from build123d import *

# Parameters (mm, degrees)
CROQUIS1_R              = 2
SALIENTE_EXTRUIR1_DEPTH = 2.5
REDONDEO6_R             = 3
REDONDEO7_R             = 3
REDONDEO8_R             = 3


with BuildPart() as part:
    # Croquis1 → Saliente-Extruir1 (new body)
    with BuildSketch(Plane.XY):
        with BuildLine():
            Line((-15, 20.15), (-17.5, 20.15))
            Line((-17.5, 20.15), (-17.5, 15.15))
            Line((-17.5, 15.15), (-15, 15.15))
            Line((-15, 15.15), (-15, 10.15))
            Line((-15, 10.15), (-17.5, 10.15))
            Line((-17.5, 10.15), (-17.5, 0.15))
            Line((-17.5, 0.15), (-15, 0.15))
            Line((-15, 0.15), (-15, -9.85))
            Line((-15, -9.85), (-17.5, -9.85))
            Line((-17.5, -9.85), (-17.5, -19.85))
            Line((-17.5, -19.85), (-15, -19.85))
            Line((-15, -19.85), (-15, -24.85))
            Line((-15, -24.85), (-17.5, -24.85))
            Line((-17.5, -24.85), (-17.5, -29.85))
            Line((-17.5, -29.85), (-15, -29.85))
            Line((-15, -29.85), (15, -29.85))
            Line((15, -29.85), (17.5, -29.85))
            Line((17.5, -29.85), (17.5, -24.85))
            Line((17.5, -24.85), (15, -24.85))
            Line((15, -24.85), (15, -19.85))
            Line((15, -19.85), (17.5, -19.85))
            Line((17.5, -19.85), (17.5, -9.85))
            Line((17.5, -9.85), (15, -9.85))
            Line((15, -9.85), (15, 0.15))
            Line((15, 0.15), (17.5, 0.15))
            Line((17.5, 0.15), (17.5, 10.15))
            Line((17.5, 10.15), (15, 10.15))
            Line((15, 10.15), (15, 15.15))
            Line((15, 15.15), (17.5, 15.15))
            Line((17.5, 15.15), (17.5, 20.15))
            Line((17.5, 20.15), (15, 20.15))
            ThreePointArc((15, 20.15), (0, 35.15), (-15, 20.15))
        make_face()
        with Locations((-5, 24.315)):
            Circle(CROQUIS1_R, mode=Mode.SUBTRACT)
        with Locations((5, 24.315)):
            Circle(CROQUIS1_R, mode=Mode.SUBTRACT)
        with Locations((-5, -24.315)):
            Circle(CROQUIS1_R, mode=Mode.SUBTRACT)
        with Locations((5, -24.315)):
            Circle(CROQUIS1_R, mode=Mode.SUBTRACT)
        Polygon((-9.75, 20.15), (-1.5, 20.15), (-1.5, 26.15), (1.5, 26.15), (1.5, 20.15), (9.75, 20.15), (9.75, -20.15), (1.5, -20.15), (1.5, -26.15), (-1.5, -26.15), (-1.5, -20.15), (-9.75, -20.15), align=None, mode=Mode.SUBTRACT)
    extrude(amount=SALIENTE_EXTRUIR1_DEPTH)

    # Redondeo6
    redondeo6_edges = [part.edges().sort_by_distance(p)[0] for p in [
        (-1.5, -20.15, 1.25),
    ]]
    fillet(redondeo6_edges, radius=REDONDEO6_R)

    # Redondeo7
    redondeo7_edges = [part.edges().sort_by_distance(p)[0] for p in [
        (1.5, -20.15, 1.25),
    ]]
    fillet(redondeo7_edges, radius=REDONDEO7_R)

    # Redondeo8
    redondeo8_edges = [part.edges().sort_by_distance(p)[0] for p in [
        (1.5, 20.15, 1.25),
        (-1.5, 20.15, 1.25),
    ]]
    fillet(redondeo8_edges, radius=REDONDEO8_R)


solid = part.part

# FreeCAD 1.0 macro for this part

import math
import FreeCAD as App
import Part
import Sketcher

V = App.Vector


def edges_at(feature, points):
    """Names of the edges that pass closest to the given points."""
    edges = feature.Shape.Edges
    near = lambda p: min(range(len(edges)), key=lambda i: edges[i].distToShape(Part.Vertex(*p))[0])
    return sorted({f"Edge{near(p) + 1}" for p in points})

doc = App.newDocument("Part")
body = doc.addObject("PartDesign::Body", "Body")

sketch1 = body.newObject("Sketcher::SketchObject", "Sketch")
sketch1.AttachmentSupport = (doc.getObject("XY_Plane"), [""])
sketch1.MapMode = "FlatFace"
sketch1.addGeometry(Part.LineSegment(V(-15, 20.15, 0), V(-17.5, 20.15, 0)), False)
sketch1.addGeometry(Part.LineSegment(V(-17.5, 20.15, 0), V(-17.5, 15.15, 0)), False)
sketch1.addGeometry(Part.LineSegment(V(-17.5, 15.15, 0), V(-15, 15.15, 0)), False)
sketch1.addGeometry(Part.LineSegment(V(-15, 15.15, 0), V(-15, 10.15, 0)), False)
sketch1.addGeometry(Part.LineSegment(V(-15, 10.15, 0), V(-17.5, 10.15, 0)), False)
sketch1.addGeometry(Part.LineSegment(V(-17.5, 10.15, 0), V(-17.5, 0.15, 0)), False)
sketch1.addGeometry(Part.LineSegment(V(-17.5, 0.15, 0), V(-15, 0.15, 0)), False)
sketch1.addGeometry(Part.LineSegment(V(-15, 0.15, 0), V(-15, -9.85, 0)), False)
sketch1.addGeometry(Part.LineSegment(V(-15, -9.85, 0), V(-17.5, -9.85, 0)), False)
sketch1.addGeometry(Part.LineSegment(V(-17.5, -9.85, 0), V(-17.5, -19.85, 0)), False)
sketch1.addGeometry(Part.LineSegment(V(-17.5, -19.85, 0), V(-15, -19.85, 0)), False)
sketch1.addGeometry(Part.LineSegment(V(-15, -19.85, 0), V(-15, -24.85, 0)), False)
sketch1.addGeometry(Part.LineSegment(V(-15, -24.85, 0), V(-17.5, -24.85, 0)), False)
sketch1.addGeometry(Part.LineSegment(V(-17.5, -24.85, 0), V(-17.5, -29.85, 0)), False)
sketch1.addGeometry(Part.LineSegment(V(-17.5, -29.85, 0), V(17.5, -29.85, 0)), False)
sketch1.addGeometry(Part.LineSegment(V(17.5, -29.85, 0), V(17.5, -24.85, 0)), False)
sketch1.addGeometry(Part.LineSegment(V(17.5, -24.85, 0), V(15, -24.85, 0)), False)
sketch1.addGeometry(Part.LineSegment(V(15, -24.85, 0), V(15, -19.85, 0)), False)
sketch1.addGeometry(Part.LineSegment(V(15, -19.85, 0), V(17.5, -19.85, 0)), False)
sketch1.addGeometry(Part.LineSegment(V(17.5, -19.85, 0), V(17.5, -9.85, 0)), False)
sketch1.addGeometry(Part.LineSegment(V(17.5, -9.85, 0), V(15, -9.85, 0)), False)
sketch1.addGeometry(Part.LineSegment(V(15, -9.85, 0), V(15, 0.15, 0)), False)
sketch1.addGeometry(Part.LineSegment(V(15, 0.15, 0), V(17.5, 0.15, 0)), False)
sketch1.addGeometry(Part.LineSegment(V(17.5, 0.15, 0), V(17.5, 10.15, 0)), False)
sketch1.addGeometry(Part.LineSegment(V(17.5, 10.15, 0), V(15, 10.15, 0)), False)
sketch1.addGeometry(Part.LineSegment(V(15, 10.15, 0), V(15, 15.15, 0)), False)
sketch1.addGeometry(Part.LineSegment(V(15, 15.15, 0), V(17.5, 15.15, 0)), False)
sketch1.addGeometry(Part.LineSegment(V(17.5, 15.15, 0), V(17.5, 20.15, 0)), False)
sketch1.addGeometry(Part.LineSegment(V(17.5, 20.15, 0), V(15, 20.15, 0)), False)
sketch1.addGeometry(Part.ArcOfCircle(Part.Circle(V(0, 20.15, 0), V(0, 0, 1), 15), math.radians(0), math.radians(180)), False)
sketch1.addGeometry(Part.Circle(V(-5, -24.315, 0), V(0, 0, 1), 2), False)
sketch1.addGeometry(Part.Circle(V(5, -24.315, 0), V(0, 0, 1), 2), False)
sketch1.addGeometry(Part.Circle(V(-5, 24.315, 0), V(0, 0, 1), 2), False)
sketch1.addGeometry(Part.LineSegment(V(-9.75, -20.15, 0), V(-9.75, 20.15, 0)), False)
sketch1.addGeometry(Part.LineSegment(V(-9.75, 20.15, 0), V(-1.5, 20.15, 0)), False)
sketch1.addGeometry(Part.LineSegment(V(-1.5, 20.15, 0), V(-1.5, 26.15, 0)), False)
sketch1.addGeometry(Part.LineSegment(V(-1.5, 26.15, 0), V(1.5, 26.15, 0)), False)
sketch1.addGeometry(Part.LineSegment(V(1.5, 26.15, 0), V(1.5, 20.15, 0)), False)
sketch1.addGeometry(Part.LineSegment(V(1.5, 20.15, 0), V(9.75, 20.15, 0)), False)
sketch1.addGeometry(Part.LineSegment(V(9.75, 20.15, 0), V(9.75, -20.15, 0)), False)
sketch1.addGeometry(Part.LineSegment(V(9.75, -20.15, 0), V(1.5, -20.15, 0)), False)
sketch1.addGeometry(Part.LineSegment(V(1.5, -20.15, 0), V(1.5, -26.15, 0)), False)
sketch1.addGeometry(Part.LineSegment(V(1.5, -26.15, 0), V(-1.5, -26.15, 0)), False)
sketch1.addGeometry(Part.LineSegment(V(-1.5, -26.15, 0), V(-1.5, -20.15, 0)), False)
sketch1.addGeometry(Part.LineSegment(V(-1.5, -20.15, 0), V(-9.75, -20.15, 0)), False)
sketch1.addGeometry(Part.Circle(V(5, 24.315, 0), V(0, 0, 1), 2), False)
sketch1.addConstraint(Sketcher.Constraint("Coincident", 0, 2, 1, 1))
sketch1.addConstraint(Sketcher.Constraint("Coincident", 1, 2, 2, 1))
sketch1.addConstraint(Sketcher.Constraint("Coincident", 2, 2, 3, 1))
sketch1.addConstraint(Sketcher.Constraint("Coincident", 3, 2, 4, 1))
sketch1.addConstraint(Sketcher.Constraint("Coincident", 4, 2, 5, 1))
sketch1.addConstraint(Sketcher.Constraint("Coincident", 5, 2, 6, 1))
sketch1.addConstraint(Sketcher.Constraint("Coincident", 6, 2, 7, 1))
sketch1.addConstraint(Sketcher.Constraint("Coincident", 7, 2, 8, 1))
sketch1.addConstraint(Sketcher.Constraint("Coincident", 8, 2, 9, 1))
sketch1.addConstraint(Sketcher.Constraint("Coincident", 9, 2, 10, 1))
sketch1.addConstraint(Sketcher.Constraint("Coincident", 10, 2, 11, 1))
sketch1.addConstraint(Sketcher.Constraint("Coincident", 11, 2, 12, 1))
sketch1.addConstraint(Sketcher.Constraint("Coincident", 12, 2, 13, 1))
sketch1.addConstraint(Sketcher.Constraint("Coincident", 13, 2, 14, 1))
sketch1.addConstraint(Sketcher.Constraint("Coincident", 14, 2, 15, 1))
sketch1.addConstraint(Sketcher.Constraint("Coincident", 15, 2, 16, 1))
sketch1.addConstraint(Sketcher.Constraint("Coincident", 16, 2, 17, 1))
sketch1.addConstraint(Sketcher.Constraint("Coincident", 17, 2, 18, 1))
sketch1.addConstraint(Sketcher.Constraint("Coincident", 18, 2, 19, 1))
sketch1.addConstraint(Sketcher.Constraint("Coincident", 19, 2, 20, 1))
sketch1.addConstraint(Sketcher.Constraint("Coincident", 20, 2, 21, 1))
sketch1.addConstraint(Sketcher.Constraint("Coincident", 21, 2, 22, 1))
sketch1.addConstraint(Sketcher.Constraint("Coincident", 22, 2, 23, 1))
sketch1.addConstraint(Sketcher.Constraint("Coincident", 23, 2, 24, 1))
sketch1.addConstraint(Sketcher.Constraint("Coincident", 24, 2, 25, 1))
sketch1.addConstraint(Sketcher.Constraint("Coincident", 25, 2, 26, 1))
sketch1.addConstraint(Sketcher.Constraint("Coincident", 26, 2, 27, 1))
sketch1.addConstraint(Sketcher.Constraint("Coincident", 27, 2, 28, 1))
sketch1.addConstraint(Sketcher.Constraint("Coincident", 28, 2, 29, 1))
sketch1.addConstraint(Sketcher.Constraint("Coincident", 29, 2, 0, 1))
sketch1.addConstraint(Sketcher.Constraint("Coincident", 33, 2, 34, 1))
sketch1.addConstraint(Sketcher.Constraint("Coincident", 34, 2, 35, 1))
sketch1.addConstraint(Sketcher.Constraint("Coincident", 35, 2, 36, 1))
sketch1.addConstraint(Sketcher.Constraint("Coincident", 36, 2, 37, 1))
sketch1.addConstraint(Sketcher.Constraint("Coincident", 37, 2, 38, 1))
sketch1.addConstraint(Sketcher.Constraint("Coincident", 38, 2, 39, 1))
sketch1.addConstraint(Sketcher.Constraint("Coincident", 39, 2, 40, 1))
sketch1.addConstraint(Sketcher.Constraint("Coincident", 40, 2, 41, 1))
sketch1.addConstraint(Sketcher.Constraint("Coincident", 41, 2, 42, 1))
sketch1.addConstraint(Sketcher.Constraint("Coincident", 42, 2, 43, 1))
sketch1.addConstraint(Sketcher.Constraint("Coincident", 43, 2, 44, 1))
sketch1.addConstraint(Sketcher.Constraint("Coincident", 44, 2, 33, 1))
sketch1.addConstraint(Sketcher.Constraint("Horizontal", 0))
sketch1.addConstraint(Sketcher.Constraint("Vertical", 1))
sketch1.addConstraint(Sketcher.Constraint("Horizontal", 2))
sketch1.addConstraint(Sketcher.Constraint("Vertical", 3))
sketch1.addConstraint(Sketcher.Constraint("Horizontal", 4))
sketch1.addConstraint(Sketcher.Constraint("Vertical", 5))
sketch1.addConstraint(Sketcher.Constraint("Horizontal", 6))
sketch1.addConstraint(Sketcher.Constraint("Vertical", 7))
sketch1.addConstraint(Sketcher.Constraint("Horizontal", 8))
sketch1.addConstraint(Sketcher.Constraint("Vertical", 9))
sketch1.addConstraint(Sketcher.Constraint("Horizontal", 10))
sketch1.addConstraint(Sketcher.Constraint("Vertical", 11))
sketch1.addConstraint(Sketcher.Constraint("Horizontal", 12))
sketch1.addConstraint(Sketcher.Constraint("Vertical", 13))
sketch1.addConstraint(Sketcher.Constraint("Horizontal", 14))
sketch1.addConstraint(Sketcher.Constraint("Vertical", 15))
sketch1.addConstraint(Sketcher.Constraint("Horizontal", 16))
sketch1.addConstraint(Sketcher.Constraint("Vertical", 17))
sketch1.addConstraint(Sketcher.Constraint("Horizontal", 18))
sketch1.addConstraint(Sketcher.Constraint("Vertical", 19))
sketch1.addConstraint(Sketcher.Constraint("Horizontal", 20))
sketch1.addConstraint(Sketcher.Constraint("Vertical", 21))
sketch1.addConstraint(Sketcher.Constraint("Horizontal", 22))
sketch1.addConstraint(Sketcher.Constraint("Vertical", 23))
sketch1.addConstraint(Sketcher.Constraint("Horizontal", 24))
sketch1.addConstraint(Sketcher.Constraint("Vertical", 25))
sketch1.addConstraint(Sketcher.Constraint("Horizontal", 26))
sketch1.addConstraint(Sketcher.Constraint("Vertical", 27))
sketch1.addConstraint(Sketcher.Constraint("Horizontal", 28))
sketch1.addConstraint(Sketcher.Constraint("Vertical", 33))
sketch1.addConstraint(Sketcher.Constraint("Horizontal", 34))
sketch1.addConstraint(Sketcher.Constraint("Vertical", 35))
sketch1.addConstraint(Sketcher.Constraint("Horizontal", 36))
sketch1.addConstraint(Sketcher.Constraint("Vertical", 37))
sketch1.addConstraint(Sketcher.Constraint("Horizontal", 38))
sketch1.addConstraint(Sketcher.Constraint("Vertical", 39))
sketch1.addConstraint(Sketcher.Constraint("Horizontal", 40))
sketch1.addConstraint(Sketcher.Constraint("Vertical", 41))
sketch1.addConstraint(Sketcher.Constraint("Horizontal", 42))
sketch1.addConstraint(Sketcher.Constraint("Vertical", 43))
sketch1.addConstraint(Sketcher.Constraint("Horizontal", 44))
sketch1.addConstraint(Sketcher.Constraint("Equal", 30, 31))
sketch1.addConstraint(Sketcher.Constraint("Equal", 31, 32))
sketch1.addConstraint(Sketcher.Constraint("Equal", 32, 45))
sketch1.addConstraint(Sketcher.Constraint("Symmetric", 31, 3, 32, 3, -1, 1))
sketch1.addConstraint(Sketcher.Constraint("Symmetric", 30, 3, 45, 3, -1, 1))
sketch1.addConstraint(Sketcher.Constraint("Symmetric", 33, 2, 39, 2, -1, 1))
sketch1.addConstraint(Sketcher.Constraint("Symmetric", 35, 2, 41, 2, -1, 1))
sketch1.addConstraint(Sketcher.Constraint("Symmetric", 37, 2, 43, 2, -1, 1))
sketch1.addConstraint(Sketcher.Constraint("Symmetric", 30, 3, 31, 3, -2))
sketch1.addConstraint(Sketcher.Constraint("Symmetric", 12, 2, 15, 2, -2))
sketch1.addConstraint(Sketcher.Constraint("Symmetric", 10, 2, 17, 2, -2))
sketch1.addConstraint(Sketcher.Constraint("Symmetric", 8, 2, 19, 2, -2))
sketch1.addConstraint(Sketcher.Constraint("Symmetric", 6, 2, 21, 2, -2))
sketch1.addConstraint(Sketcher.Constraint("Symmetric", 4, 2, 23, 2, -2))
sketch1.addConstraint(Sketcher.Constraint("Symmetric", 2, 2, 25, 2, -2))
sketch1.addConstraint(Sketcher.Constraint("Symmetric", 0, 2, 27, 2, -2))
sketch1.addConstraint(Sketcher.Constraint("Symmetric", 34, 2, 37, 2, -2))
sketch1.addConstraint(Sketcher.Constraint("PointOnObject", 29, 3, -2))
sketch1.addConstraint(Sketcher.Constraint("Horizontal", 29, 3, 0, 2))
sketch1.addConstraint(Sketcher.Constraint("Horizontal", 29, 2, 33, 2))
sketch1.addConstraint(Sketcher.Constraint("Vertical", 1, 2, 4, 2))
sketch1.addConstraint(Sketcher.Constraint("Vertical", 3, 2, 6, 2))
sketch1.addConstraint(Sketcher.Constraint("Vertical", 5, 2, 8, 2))
sketch1.addConstraint(Sketcher.Constraint("Vertical", 7, 2, 10, 2))
sketch1.addConstraint(Sketcher.Constraint("Vertical", 9, 2, 12, 2))
sketch1.addConstraint(Sketcher.Constraint("Vertical", 25, 2, 28, 2))
sketch1.addConstraint(Sketcher.Constraint("Equal", 1, 3))
sketch1.addConstraint(Sketcher.Constraint("Equal", 5, 7))
sketch1.addConstraint(Sketcher.Constraint("Equal", 7, 9))
sketch1.addConstraint(Sketcher.Constraint("Equal", 3, 11))
sketch1.addConstraint(Sketcher.Constraint("Equal", 11, 13))
sketch1.addConstraint(Sketcher.Constraint("Diameter", 30, 4.0))
sketch1.addConstraint(Sketcher.Constraint("Radius", 29, 15.0))
sketch1.addConstraint(Sketcher.Constraint("DistanceX", 14, 1, 14, 2, 35.0))
sketch1.addConstraint(Sketcher.Constraint("DistanceX", 36, 1, 36, 2, 3.0))
sketch1.addConstraint(Sketcher.Constraint("DistanceY", 1, 2, 1, 1, 5.0))
sketch1.addConstraint(Sketcher.Constraint("DistanceY", 5, 2, 5, 1, 10.0))
sketch1.addConstraint(Sketcher.Constraint("DistanceY", 35, 1, 35, 2, 6.0))
sketch1.addConstraint(Sketcher.Constraint("DistanceY", 33, 1, 33, 2, 40.3))
sketch1.addConstraint(Sketcher.Constraint("DistanceX", 30, 3, -1, 1, 5.0))
sketch1.addConstraint(Sketcher.Constraint("DistanceX", 34, 1, 34, 2, 8.25))
sketch1.addConstraint(Sketcher.Constraint("DistanceY", 30, 3, 32, 3, 48.63))
pad1 = body.newObject("PartDesign::Pad", "Pad")
pad1.Profile = sketch1
pad1.Length = 2.5
doc.recompute()

fillet = body.newObject("PartDesign::Fillet", "Fillet")
fillet.Base = (pad1, edges_at(pad1, [(-1.5, -20.15, 1.25)]))
fillet.Radius = 3
doc.recompute()

fillet2 = body.newObject("PartDesign::Fillet", "Fillet001")
fillet2.Base = (fillet, edges_at(fillet, [(1.5, -20.15, 1.25)]))
fillet2.Radius = 3
doc.recompute()

fillet3 = body.newObject("PartDesign::Fillet", "Fillet002")
fillet3.Base = (fillet2, edges_at(fillet2, [(1.5, 20.15, 1.25), (-1.5, 20.15, 1.25)]))
fillet3.Radius = 3

doc.recompute()
